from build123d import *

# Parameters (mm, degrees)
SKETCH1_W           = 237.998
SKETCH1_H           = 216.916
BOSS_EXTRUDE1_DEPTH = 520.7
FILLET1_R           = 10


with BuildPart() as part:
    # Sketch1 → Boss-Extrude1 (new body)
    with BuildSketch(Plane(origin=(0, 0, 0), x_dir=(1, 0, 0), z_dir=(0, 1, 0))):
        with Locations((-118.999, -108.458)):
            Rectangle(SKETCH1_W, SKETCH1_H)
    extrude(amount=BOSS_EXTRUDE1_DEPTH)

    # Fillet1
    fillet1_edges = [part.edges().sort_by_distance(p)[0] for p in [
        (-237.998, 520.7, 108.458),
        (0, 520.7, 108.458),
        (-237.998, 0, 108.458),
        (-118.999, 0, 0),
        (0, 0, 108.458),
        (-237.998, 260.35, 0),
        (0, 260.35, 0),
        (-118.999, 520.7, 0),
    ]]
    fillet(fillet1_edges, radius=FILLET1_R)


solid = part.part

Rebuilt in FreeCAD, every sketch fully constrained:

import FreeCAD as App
import Part
import Sketcher
from FreeCAD import Vector
Q = App.Units.Quantity


def edges_at(feature, points):
    """Names of the edges that pass closest to the given points."""
    edges = feature.Shape.Edges
    near = lambda p: min(range(len(edges)), key=lambda i: edges[i].distToShape(Part.Vertex(*p))[0])
    return sorted({f"Edge{near(p) + 1}" for p in points})


def add_polygon(sketch, points):
    """Adds a closed chain of lines whose ends are joined by coincident constraints."""
    first, n = sketch.GeometryCount, len(points)
    for a, b in zip(points, points[1:] + points[:1]):
        sketch.addGeometry(Part.LineSegment(App.Vector(*a, 0), App.Vector(*b, 0)), False)
    for i in range(n):
        sketch.addConstraint(Sketcher.Constraint("Coincident", first + i, 2, first + (i + 1) % n, 1))

doc = App.newDocument("Part")
body = doc.addObject("PartDesign::Body", "Body")

# Sketch on XZ plane
sketch1 = body.newObject("Sketcher::SketchObject", "Sketch")
sketch1.AttachmentSupport = (doc.getObject("XZ_Plane"), [""])
sketch1.MapMode = "FlatFace"
add_polygon(sketch1, [(-238, 0), (-238, 217), (0, 217), (0, 0)])  # lines 0-3
sketch1.addConstraint(Sketcher.Constraint("Vertical", 0))
sketch1.addConstraint(Sketcher.Constraint("Horizontal", 1))
sketch1.addConstraint(Sketcher.Constraint("Vertical", 2))
sketch1.addConstraint(Sketcher.Constraint("Horizontal", 3))
sketch1.addConstraint(Sketcher.Constraint("Coincident", 2, 2, -1, 1))
sketch1.addConstraint(Sketcher.Constraint("DistanceX", 1, 1, 1, 2, Q("9.37 in")))
sketch1.addConstraint(Sketcher.Constraint("DistanceY", 0, 1, 0, 2, Q("8.54 in")))
pad1 = body.newObject("PartDesign::Pad", "Pad")
pad1.Profile = sketch1
pad1.Length = Q("20.5 in")
pad1.Reversed = True
doc.recompute()

fillet = body.newObject("PartDesign::Fillet", "Fillet")
fillet.Base = (pad1, edges_at(pad1, [
    (-237.998, 520.7, 108.458),
    (0, 520.7, 108.458),
    (-237.998, 0, 108.458),
    (-118.999, 0, 0),
    (0, 0, 108.458),
    (-237.998, 260.35, 0),
    (0, 260.35, 0),
    (-118.999, 520.7, 0),
]))
fillet.Radius = 10

doc.recompute()
